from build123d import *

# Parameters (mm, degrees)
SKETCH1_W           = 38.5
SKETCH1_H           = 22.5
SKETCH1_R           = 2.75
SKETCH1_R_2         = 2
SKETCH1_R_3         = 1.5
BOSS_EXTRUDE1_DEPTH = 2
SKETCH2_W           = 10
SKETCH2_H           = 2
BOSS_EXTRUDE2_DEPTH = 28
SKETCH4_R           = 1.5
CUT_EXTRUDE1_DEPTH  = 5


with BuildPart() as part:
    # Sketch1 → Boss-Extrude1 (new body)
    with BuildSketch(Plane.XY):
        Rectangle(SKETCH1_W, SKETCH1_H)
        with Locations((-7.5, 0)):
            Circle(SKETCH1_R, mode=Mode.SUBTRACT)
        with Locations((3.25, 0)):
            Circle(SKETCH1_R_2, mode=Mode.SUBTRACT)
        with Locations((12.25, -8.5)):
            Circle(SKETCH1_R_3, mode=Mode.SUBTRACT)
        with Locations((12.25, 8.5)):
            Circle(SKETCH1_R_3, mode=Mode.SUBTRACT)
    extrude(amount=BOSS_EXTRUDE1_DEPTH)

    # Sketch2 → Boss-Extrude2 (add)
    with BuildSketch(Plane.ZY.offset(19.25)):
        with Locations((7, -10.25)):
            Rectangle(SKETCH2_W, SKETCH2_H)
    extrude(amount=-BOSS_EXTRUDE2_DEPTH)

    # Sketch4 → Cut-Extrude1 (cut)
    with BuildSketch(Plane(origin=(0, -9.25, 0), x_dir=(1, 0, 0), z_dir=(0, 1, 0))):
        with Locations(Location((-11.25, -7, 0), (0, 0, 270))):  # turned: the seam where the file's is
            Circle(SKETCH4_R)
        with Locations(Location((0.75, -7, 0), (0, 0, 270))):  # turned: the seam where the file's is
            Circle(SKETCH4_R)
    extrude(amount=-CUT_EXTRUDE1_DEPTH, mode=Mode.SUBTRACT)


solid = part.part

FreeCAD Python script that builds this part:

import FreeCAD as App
import Part
import Sketcher

V = App.Vector
Q = App.Units.Quantity


def add_polygon(sketch, points):
    """Adds a closed chain of lines whose ends are joined by coincident constraints."""
    first, n = sketch.GeometryCount, len(points)
    for a, b in zip(points, points[1:] + points[:1]):
        sketch.addGeometry(Part.LineSegment(App.Vector(*a, 0), App.Vector(*b, 0)), False)
    for i in range(n):
        sketch.addConstraint(Sketcher.Constraint("Coincident", first + i, 2, first + (i + 1) % n, 1))

doc = App.newDocument("Part")
body = doc.addObject("PartDesign::Body", "Body")

# Sketch on XY plane
sketch1 = body.newObject("Sketcher::SketchObject", "Sketch")
sketch1.AttachmentSupport = (doc.getObject("XY_Plane"), [""])
sketch1.MapMode = "FlatFace"
add_polygon(sketch1, [(-19.25, 11.25), (-19.25, -11.25), (19.25, -11.25), (19.25, 11.25)])  # lines 0-3
sketch1.addGeometry(Part.Circle(V(12.25, -8.5, 0), V(0, 0, 1), 1.5), False)  # 4
sketch1.addGeometry(Part.Circle(V(-7.5, 0, 0), V(0, 0, 1), 2.75), False)  # 5
sketch1.addGeometry(Part.Circle(V(3.25, 0, 0), V(0, 0, 1), 2), False)  # 6
sketch1.addGeometry(Part.Circle(V(12.25, 8.5, 0), V(0, 0, 1), 1.5), False)  # 7
sketch1.addConstraint([
    Sketcher.Constraint("Vertical", 0),
    Sketcher.Constraint("Horizontal", 1),
    Sketcher.Constraint("Vertical", 2),
    Sketcher.Constraint("Horizontal", 3),
    Sketcher.Constraint("Equal", 4, 7),
    Sketcher.Constraint("Symmetric", 0, 2, 2, 2, -1, 1),
    Sketcher.Constraint("Symmetric", 4, 3, 7, 3, -1),
    Sketcher.Constraint("PointOnObject", 5, 3, -1),
    Sketcher.Constraint("PointOnObject", 6, 3, -1),
    Sketcher.Constraint("Diameter", 4, Q("3 mm")),
    Sketcher.Constraint("Diameter", 6, Q("4 mm")),
    Sketcher.Constraint("Diameter", 5, Q("5.5 mm")),
    Sketcher.Constraint("DistanceX", 1, 1, 1, 2, Q("38.5 mm")),
    Sketcher.Constraint("DistanceY", 0, 2, 0, 1, Q("22.5 mm")),
    Sketcher.Constraint("DistanceX", 6, 3, 4, 3, Q("9 mm")),
    Sketcher.Constraint("DistanceY", 4, 3, 7, 3, Q("17 mm")),
    Sketcher.Constraint("DistanceX", 4, 3, 1, 2, Q("7 mm")),
    Sketcher.Constraint("DistanceX", 5, 3, -1, 1, Q("7.5 mm")),
])
pad1 = body.newObject("PartDesign::Pad", "Pad")
pad1.Profile = sketch1
pad1.Length = 2

# Sketch on YZ plane
sketch2 = body.newObject("Sketcher::SketchObject", "Sketch001")
sketch2.AttachmentSupport = (doc.getObject("YZ_Plane"), [""])
sketch2.MapMode = "FlatFace"
sketch2.AttachmentOffset = App.Placement(V(0, 0, -19.25), App.Rotation())
add_polygon(sketch2, [(-9.25, 2), (-11.25, 2), (-11.25, 12), (-9.25, 12)])  # lines 0-3
sketch2.addConstraint([
    Sketcher.Constraint("Horizontal", 0),
    Sketcher.Constraint("Vertical", 1),
    Sketcher.Constraint("Horizontal", 2),
    Sketcher.Constraint("Vertical", 3),
    Sketcher.Constraint("DistanceX", 0, 2, 0, 1, Q("2 mm")),
    Sketcher.Constraint("DistanceY", 1, 1, 1, 2, Q("10 mm")),
    Sketcher.Constraint("DistanceY", -1, 1, 0, 2, Q("2 mm")),
    Sketcher.Constraint("DistanceX", 0, 2, -1, 1, Q("11.25 mm")),
])
pad2 = body.newObject("PartDesign::Pad", "Pad001")
pad2.Profile = sketch2
pad2.Length = 28

# Sketch on XZ plane
sketch3 = body.newObject("Sketcher::SketchObject", "Sketch002")
sketch3.AttachmentSupport = (doc.getObject("XZ_Plane"), [""])
sketch3.MapMode = "FlatFace"
sketch3.AttachmentOffset = App.Placement(V(0, 0, 9.25), App.Rotation())
sketch3.addGeometry([
    Part.Circle(V(-11.25, 7, 0), V(0, 0, 1), 1.5),
    Part.Circle(V(0.75, 7, 0), V(0, 0, 1), 1.5),
], False)
sketch3.addConstraint([
    Sketcher.Constraint("Equal", 0, 1),
    Sketcher.Constraint("Horizontal", 0, 3, 1, 3),
    Sketcher.Constraint("Diameter", 0, Q("3 mm")),
    Sketcher.Constraint("DistanceY", -1, 1, 0, 3, Q("7 mm")),
    Sketcher.Constraint("DistanceX", 0, 3, 1, 3, Q("12 mm")),
    Sketcher.Constraint("DistanceX", 0, 3, -1, 1, Q("11.25 mm")),
])
pocket1 = body.newObject("PartDesign::Pocket", "Pocket")
pocket1.Profile = sketch3
pocket1.Length = 5
pocket1.Reversed = True

doc.recompute()
